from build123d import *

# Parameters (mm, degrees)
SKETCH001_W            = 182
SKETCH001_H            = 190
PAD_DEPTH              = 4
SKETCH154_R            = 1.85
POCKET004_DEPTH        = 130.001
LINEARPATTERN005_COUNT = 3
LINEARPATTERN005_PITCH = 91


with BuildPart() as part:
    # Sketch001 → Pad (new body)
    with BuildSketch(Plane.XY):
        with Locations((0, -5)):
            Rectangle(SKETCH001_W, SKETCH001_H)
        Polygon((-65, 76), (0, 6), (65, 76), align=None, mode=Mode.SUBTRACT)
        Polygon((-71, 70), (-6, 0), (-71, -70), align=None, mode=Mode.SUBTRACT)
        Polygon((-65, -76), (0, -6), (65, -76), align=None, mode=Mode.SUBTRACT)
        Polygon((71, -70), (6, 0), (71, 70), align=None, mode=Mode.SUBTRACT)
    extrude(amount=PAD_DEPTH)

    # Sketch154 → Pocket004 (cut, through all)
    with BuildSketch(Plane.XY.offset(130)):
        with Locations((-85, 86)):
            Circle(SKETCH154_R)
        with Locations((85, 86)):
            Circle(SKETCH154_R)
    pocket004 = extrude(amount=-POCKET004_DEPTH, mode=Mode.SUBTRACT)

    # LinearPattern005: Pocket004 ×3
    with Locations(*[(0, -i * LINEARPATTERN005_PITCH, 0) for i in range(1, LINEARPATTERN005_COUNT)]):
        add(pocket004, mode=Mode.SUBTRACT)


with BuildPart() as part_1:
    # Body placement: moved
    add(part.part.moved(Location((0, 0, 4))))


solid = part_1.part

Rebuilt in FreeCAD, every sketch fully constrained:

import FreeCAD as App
import Part
import Sketcher
Q = App.Units.Quantity


def add_polygon(sketch, points):
    """Adds a closed chain of lines whose ends are joined by coincident constraints."""
    first, n = sketch.GeometryCount, len(points)
    for a, b in zip(points, points[1:] + points[:1]):
        sketch.addGeometry(Part.LineSegment(App.Vector(*a, 0), App.Vector(*b, 0)), False)
    for i in range(n):
        sketch.addConstraint(Sketcher.Constraint("Coincident", first + i, 2, first + (i + 1) % n, 1))

doc = App.newDocument("Part")
params = doc.addObject("Spreadsheet::Sheet", "Params")
for row, (alias, value) in enumerate([
    ("sketch1_width", "182 mm"),
    ("sketch1_width2", "130 mm"),
    ("sketch1_height", "190 mm"),
    ("sketch1_height2", "140 mm"),
    ("pad1_length", "4 mm"),
    ("sketch2_diameter", "3.7 mm"),
    ("linearpattern_pitch", "91 mm"),
], start=1):
    params.set(f"A{row}", alias)
    params.set(f"B{row}", "=" + value)
    params.setAlias(f"B{row}", alias)

body = doc.addObject("PartDesign::Body", "Body")

# Sketch on XY plane
sketch1 = body.newObject("Sketcher::SketchObject", "Sketch")
sketch1.AttachmentSupport = (doc.getObject("XY_Plane"), [""])
sketch1.MapMode = "FlatFace"
add_polygon(sketch1, [(-91, 90), (-91, -100), (91, -100), (91, 90)])  # lines 0-3
add_polygon(sketch1, [(-71, -70), (-71, 70), (-6, 0)])  # lines 4-6
add_polygon(sketch1, [(65, -76), (-65, -76), (0, -6)])  # lines 7-9
add_polygon(sketch1, [(71, 70), (71, -70), (6, 0)])  # lines 10-12
add_polygon(sketch1, [(0, 6), (-65, 76), (65, 76)])  # lines 13-15
sketch1.addConstraint(Sketcher.Constraint("Vertical", 0))
sketch1.addConstraint(Sketcher.Constraint("Horizontal", 1))
sketch1.addConstraint(Sketcher.Constraint("Vertical", 2))
sketch1.addConstraint(Sketcher.Constraint("Horizontal", 3))
sketch1.addConstraint(Sketcher.Constraint("Vertical", 4))
sketch1.addConstraint(Sketcher.Constraint("Horizontal", 7))
sketch1.addConstraint(Sketcher.Constraint("Vertical", 10))
sketch1.addConstraint(Sketcher.Constraint("Horizontal", 14))
sketch1.addConstraint(Sketcher.Constraint("Symmetric", 4, 2, 10, 2, -1, 1))
sketch1.addConstraint(Sketcher.Constraint("Symmetric", 5, 2, 11, 2, -1, 1))
sketch1.addConstraint(Sketcher.Constraint("Symmetric", 9, 2, 13, 2, -1, 1))
sketch1.addConstraint(Sketcher.Constraint("Symmetric", 8, 2, 15, 2, -1, 1))
sketch1.addConstraint(Sketcher.Constraint("PointOnObject", 5, 2, -1))
sketch1.addConstraint(Sketcher.Constraint("PointOnObject", 8, 2, -2))
sketch1.addConstraint(Sketcher.Constraint("Parallel", 6, 8))
sketch1.addConstraint(Sketcher.Constraint("Parallel", 5, 9))
sketch1.addConstraint(Sketcher.Constraint("Parallel", 8, 12))
sketch1.addConstraint(Sketcher.Constraint("Parallel", 12, 15))
sketch1.addConstraint(Sketcher.Constraint("Horizontal", 6, 2, 10, 2))
sketch1.addConstraint(Sketcher.Constraint("Equal", 6, 8))
sketch1.addConstraint(Sketcher.Constraint("DistanceX", 1, 1, 1, 2, Q("182 mm")))
sketch1.addConstraint(Sketcher.Constraint("DistanceX", 7, 2, 7, 1, Q("130 mm")))
sketch1.addConstraint(Sketcher.Constraint("DistanceY", 0, 2, 0, 1, Q("190 mm")))
sketch1.addConstraint(Sketcher.Constraint("DistanceY", 4, 1, 4, 2, Q("140 mm")))
sketch1.addConstraint(Sketcher.Constraint("DistanceX", 0, 2, -1, 1, Q("91 mm")))
sketch1.addConstraint(Sketcher.Constraint("DistanceY", 0, 2, -1, 1, Q("100 mm")))
sketch1.addConstraint(Sketcher.Constraint("DistanceX", 4, 2, -1, 1, Q("71 mm")))
sketch1.addConstraint(Sketcher.Constraint("DistanceY", 7, 2, -1, 1, Q("76 mm")))
sketch1.setExpression("Constraints[36]", "Params.sketch1_width")
sketch1.setExpression("Constraints[37]", "Params.sketch1_width2")
sketch1.setExpression("Constraints[38]", "Params.sketch1_height")
sketch1.setExpression("Constraints[39]", "Params.sketch1_height2")
pad1 = body.newObject("PartDesign::Pad", "Pad")
pad1.Profile = sketch1
pad1.setExpression("Length", "Params.pad1_length")

# Sketch on XY plane
sketch2 = body.newObject("Sketcher::SketchObject", "Sketch001")
sketch2.AttachmentSupport = (doc.getObject("XY_Plane"), [""])
sketch2.MapMode = "FlatFace"
sketch2.AttachmentOffset = App.Placement(App.Vector(0, 0, 130), App.Rotation())
sketch2.addGeometry(Part.Circle(App.Vector(-85, 86, 0), App.Vector(0, 0, 1), 1.85), False)
sketch2.addGeometry(Part.Circle(App.Vector(85, 86, 0), App.Vector(0, 0, 1), 1.85), False)
sketch2.addConstraint(Sketcher.Constraint("Equal", 0, 1))
sketch2.addConstraint(Sketcher.Constraint("Symmetric", 0, 3, 1, 3, -2))
sketch2.addConstraint(Sketcher.Constraint("Diameter", 0, Q("3.7 mm")))
sketch2.addConstraint(Sketcher.Constraint("DistanceX", 0, 3, -1, 1, Q("85 mm")))
sketch2.addConstraint(Sketcher.Constraint("DistanceY", -1, 1, 0, 3, Q("86 mm")))
sketch2.setExpression("Constraints[2]", "Params.sketch2_diameter")
pocket1 = body.newObject("PartDesign::Pocket", "Pocket")
pocket1.Profile = sketch2
pocket1.Type = "ThroughAll"
doc.recompute()

linearpattern = body.newObject("PartDesign::LinearPattern", "LinearPattern")
linearpattern.Originals = [pocket1]
linearpattern.Direction = (doc.getObject("Y_Axis"), [""])
linearpattern.Mode = "offset"
linearpattern.setExpression("Offset", "Params.linearpattern_pitch")
linearpattern.Occurrences = 3
linearpattern.Reversed = True
body.Tip = linearpattern
body2 = doc.addObject("PartDesign::Body", "Body001")
doc.recompute()

body.Placement = App.Placement(App.Vector(0, 0, 4), App.Rotation(App.Vector(0, 0, 1), 0))
boolean = body2.newObject("PartDesign::Boolean", "Boolean")
boolean.Type = "Fuse"
boolean.addObjects([body])

doc.recompute()
